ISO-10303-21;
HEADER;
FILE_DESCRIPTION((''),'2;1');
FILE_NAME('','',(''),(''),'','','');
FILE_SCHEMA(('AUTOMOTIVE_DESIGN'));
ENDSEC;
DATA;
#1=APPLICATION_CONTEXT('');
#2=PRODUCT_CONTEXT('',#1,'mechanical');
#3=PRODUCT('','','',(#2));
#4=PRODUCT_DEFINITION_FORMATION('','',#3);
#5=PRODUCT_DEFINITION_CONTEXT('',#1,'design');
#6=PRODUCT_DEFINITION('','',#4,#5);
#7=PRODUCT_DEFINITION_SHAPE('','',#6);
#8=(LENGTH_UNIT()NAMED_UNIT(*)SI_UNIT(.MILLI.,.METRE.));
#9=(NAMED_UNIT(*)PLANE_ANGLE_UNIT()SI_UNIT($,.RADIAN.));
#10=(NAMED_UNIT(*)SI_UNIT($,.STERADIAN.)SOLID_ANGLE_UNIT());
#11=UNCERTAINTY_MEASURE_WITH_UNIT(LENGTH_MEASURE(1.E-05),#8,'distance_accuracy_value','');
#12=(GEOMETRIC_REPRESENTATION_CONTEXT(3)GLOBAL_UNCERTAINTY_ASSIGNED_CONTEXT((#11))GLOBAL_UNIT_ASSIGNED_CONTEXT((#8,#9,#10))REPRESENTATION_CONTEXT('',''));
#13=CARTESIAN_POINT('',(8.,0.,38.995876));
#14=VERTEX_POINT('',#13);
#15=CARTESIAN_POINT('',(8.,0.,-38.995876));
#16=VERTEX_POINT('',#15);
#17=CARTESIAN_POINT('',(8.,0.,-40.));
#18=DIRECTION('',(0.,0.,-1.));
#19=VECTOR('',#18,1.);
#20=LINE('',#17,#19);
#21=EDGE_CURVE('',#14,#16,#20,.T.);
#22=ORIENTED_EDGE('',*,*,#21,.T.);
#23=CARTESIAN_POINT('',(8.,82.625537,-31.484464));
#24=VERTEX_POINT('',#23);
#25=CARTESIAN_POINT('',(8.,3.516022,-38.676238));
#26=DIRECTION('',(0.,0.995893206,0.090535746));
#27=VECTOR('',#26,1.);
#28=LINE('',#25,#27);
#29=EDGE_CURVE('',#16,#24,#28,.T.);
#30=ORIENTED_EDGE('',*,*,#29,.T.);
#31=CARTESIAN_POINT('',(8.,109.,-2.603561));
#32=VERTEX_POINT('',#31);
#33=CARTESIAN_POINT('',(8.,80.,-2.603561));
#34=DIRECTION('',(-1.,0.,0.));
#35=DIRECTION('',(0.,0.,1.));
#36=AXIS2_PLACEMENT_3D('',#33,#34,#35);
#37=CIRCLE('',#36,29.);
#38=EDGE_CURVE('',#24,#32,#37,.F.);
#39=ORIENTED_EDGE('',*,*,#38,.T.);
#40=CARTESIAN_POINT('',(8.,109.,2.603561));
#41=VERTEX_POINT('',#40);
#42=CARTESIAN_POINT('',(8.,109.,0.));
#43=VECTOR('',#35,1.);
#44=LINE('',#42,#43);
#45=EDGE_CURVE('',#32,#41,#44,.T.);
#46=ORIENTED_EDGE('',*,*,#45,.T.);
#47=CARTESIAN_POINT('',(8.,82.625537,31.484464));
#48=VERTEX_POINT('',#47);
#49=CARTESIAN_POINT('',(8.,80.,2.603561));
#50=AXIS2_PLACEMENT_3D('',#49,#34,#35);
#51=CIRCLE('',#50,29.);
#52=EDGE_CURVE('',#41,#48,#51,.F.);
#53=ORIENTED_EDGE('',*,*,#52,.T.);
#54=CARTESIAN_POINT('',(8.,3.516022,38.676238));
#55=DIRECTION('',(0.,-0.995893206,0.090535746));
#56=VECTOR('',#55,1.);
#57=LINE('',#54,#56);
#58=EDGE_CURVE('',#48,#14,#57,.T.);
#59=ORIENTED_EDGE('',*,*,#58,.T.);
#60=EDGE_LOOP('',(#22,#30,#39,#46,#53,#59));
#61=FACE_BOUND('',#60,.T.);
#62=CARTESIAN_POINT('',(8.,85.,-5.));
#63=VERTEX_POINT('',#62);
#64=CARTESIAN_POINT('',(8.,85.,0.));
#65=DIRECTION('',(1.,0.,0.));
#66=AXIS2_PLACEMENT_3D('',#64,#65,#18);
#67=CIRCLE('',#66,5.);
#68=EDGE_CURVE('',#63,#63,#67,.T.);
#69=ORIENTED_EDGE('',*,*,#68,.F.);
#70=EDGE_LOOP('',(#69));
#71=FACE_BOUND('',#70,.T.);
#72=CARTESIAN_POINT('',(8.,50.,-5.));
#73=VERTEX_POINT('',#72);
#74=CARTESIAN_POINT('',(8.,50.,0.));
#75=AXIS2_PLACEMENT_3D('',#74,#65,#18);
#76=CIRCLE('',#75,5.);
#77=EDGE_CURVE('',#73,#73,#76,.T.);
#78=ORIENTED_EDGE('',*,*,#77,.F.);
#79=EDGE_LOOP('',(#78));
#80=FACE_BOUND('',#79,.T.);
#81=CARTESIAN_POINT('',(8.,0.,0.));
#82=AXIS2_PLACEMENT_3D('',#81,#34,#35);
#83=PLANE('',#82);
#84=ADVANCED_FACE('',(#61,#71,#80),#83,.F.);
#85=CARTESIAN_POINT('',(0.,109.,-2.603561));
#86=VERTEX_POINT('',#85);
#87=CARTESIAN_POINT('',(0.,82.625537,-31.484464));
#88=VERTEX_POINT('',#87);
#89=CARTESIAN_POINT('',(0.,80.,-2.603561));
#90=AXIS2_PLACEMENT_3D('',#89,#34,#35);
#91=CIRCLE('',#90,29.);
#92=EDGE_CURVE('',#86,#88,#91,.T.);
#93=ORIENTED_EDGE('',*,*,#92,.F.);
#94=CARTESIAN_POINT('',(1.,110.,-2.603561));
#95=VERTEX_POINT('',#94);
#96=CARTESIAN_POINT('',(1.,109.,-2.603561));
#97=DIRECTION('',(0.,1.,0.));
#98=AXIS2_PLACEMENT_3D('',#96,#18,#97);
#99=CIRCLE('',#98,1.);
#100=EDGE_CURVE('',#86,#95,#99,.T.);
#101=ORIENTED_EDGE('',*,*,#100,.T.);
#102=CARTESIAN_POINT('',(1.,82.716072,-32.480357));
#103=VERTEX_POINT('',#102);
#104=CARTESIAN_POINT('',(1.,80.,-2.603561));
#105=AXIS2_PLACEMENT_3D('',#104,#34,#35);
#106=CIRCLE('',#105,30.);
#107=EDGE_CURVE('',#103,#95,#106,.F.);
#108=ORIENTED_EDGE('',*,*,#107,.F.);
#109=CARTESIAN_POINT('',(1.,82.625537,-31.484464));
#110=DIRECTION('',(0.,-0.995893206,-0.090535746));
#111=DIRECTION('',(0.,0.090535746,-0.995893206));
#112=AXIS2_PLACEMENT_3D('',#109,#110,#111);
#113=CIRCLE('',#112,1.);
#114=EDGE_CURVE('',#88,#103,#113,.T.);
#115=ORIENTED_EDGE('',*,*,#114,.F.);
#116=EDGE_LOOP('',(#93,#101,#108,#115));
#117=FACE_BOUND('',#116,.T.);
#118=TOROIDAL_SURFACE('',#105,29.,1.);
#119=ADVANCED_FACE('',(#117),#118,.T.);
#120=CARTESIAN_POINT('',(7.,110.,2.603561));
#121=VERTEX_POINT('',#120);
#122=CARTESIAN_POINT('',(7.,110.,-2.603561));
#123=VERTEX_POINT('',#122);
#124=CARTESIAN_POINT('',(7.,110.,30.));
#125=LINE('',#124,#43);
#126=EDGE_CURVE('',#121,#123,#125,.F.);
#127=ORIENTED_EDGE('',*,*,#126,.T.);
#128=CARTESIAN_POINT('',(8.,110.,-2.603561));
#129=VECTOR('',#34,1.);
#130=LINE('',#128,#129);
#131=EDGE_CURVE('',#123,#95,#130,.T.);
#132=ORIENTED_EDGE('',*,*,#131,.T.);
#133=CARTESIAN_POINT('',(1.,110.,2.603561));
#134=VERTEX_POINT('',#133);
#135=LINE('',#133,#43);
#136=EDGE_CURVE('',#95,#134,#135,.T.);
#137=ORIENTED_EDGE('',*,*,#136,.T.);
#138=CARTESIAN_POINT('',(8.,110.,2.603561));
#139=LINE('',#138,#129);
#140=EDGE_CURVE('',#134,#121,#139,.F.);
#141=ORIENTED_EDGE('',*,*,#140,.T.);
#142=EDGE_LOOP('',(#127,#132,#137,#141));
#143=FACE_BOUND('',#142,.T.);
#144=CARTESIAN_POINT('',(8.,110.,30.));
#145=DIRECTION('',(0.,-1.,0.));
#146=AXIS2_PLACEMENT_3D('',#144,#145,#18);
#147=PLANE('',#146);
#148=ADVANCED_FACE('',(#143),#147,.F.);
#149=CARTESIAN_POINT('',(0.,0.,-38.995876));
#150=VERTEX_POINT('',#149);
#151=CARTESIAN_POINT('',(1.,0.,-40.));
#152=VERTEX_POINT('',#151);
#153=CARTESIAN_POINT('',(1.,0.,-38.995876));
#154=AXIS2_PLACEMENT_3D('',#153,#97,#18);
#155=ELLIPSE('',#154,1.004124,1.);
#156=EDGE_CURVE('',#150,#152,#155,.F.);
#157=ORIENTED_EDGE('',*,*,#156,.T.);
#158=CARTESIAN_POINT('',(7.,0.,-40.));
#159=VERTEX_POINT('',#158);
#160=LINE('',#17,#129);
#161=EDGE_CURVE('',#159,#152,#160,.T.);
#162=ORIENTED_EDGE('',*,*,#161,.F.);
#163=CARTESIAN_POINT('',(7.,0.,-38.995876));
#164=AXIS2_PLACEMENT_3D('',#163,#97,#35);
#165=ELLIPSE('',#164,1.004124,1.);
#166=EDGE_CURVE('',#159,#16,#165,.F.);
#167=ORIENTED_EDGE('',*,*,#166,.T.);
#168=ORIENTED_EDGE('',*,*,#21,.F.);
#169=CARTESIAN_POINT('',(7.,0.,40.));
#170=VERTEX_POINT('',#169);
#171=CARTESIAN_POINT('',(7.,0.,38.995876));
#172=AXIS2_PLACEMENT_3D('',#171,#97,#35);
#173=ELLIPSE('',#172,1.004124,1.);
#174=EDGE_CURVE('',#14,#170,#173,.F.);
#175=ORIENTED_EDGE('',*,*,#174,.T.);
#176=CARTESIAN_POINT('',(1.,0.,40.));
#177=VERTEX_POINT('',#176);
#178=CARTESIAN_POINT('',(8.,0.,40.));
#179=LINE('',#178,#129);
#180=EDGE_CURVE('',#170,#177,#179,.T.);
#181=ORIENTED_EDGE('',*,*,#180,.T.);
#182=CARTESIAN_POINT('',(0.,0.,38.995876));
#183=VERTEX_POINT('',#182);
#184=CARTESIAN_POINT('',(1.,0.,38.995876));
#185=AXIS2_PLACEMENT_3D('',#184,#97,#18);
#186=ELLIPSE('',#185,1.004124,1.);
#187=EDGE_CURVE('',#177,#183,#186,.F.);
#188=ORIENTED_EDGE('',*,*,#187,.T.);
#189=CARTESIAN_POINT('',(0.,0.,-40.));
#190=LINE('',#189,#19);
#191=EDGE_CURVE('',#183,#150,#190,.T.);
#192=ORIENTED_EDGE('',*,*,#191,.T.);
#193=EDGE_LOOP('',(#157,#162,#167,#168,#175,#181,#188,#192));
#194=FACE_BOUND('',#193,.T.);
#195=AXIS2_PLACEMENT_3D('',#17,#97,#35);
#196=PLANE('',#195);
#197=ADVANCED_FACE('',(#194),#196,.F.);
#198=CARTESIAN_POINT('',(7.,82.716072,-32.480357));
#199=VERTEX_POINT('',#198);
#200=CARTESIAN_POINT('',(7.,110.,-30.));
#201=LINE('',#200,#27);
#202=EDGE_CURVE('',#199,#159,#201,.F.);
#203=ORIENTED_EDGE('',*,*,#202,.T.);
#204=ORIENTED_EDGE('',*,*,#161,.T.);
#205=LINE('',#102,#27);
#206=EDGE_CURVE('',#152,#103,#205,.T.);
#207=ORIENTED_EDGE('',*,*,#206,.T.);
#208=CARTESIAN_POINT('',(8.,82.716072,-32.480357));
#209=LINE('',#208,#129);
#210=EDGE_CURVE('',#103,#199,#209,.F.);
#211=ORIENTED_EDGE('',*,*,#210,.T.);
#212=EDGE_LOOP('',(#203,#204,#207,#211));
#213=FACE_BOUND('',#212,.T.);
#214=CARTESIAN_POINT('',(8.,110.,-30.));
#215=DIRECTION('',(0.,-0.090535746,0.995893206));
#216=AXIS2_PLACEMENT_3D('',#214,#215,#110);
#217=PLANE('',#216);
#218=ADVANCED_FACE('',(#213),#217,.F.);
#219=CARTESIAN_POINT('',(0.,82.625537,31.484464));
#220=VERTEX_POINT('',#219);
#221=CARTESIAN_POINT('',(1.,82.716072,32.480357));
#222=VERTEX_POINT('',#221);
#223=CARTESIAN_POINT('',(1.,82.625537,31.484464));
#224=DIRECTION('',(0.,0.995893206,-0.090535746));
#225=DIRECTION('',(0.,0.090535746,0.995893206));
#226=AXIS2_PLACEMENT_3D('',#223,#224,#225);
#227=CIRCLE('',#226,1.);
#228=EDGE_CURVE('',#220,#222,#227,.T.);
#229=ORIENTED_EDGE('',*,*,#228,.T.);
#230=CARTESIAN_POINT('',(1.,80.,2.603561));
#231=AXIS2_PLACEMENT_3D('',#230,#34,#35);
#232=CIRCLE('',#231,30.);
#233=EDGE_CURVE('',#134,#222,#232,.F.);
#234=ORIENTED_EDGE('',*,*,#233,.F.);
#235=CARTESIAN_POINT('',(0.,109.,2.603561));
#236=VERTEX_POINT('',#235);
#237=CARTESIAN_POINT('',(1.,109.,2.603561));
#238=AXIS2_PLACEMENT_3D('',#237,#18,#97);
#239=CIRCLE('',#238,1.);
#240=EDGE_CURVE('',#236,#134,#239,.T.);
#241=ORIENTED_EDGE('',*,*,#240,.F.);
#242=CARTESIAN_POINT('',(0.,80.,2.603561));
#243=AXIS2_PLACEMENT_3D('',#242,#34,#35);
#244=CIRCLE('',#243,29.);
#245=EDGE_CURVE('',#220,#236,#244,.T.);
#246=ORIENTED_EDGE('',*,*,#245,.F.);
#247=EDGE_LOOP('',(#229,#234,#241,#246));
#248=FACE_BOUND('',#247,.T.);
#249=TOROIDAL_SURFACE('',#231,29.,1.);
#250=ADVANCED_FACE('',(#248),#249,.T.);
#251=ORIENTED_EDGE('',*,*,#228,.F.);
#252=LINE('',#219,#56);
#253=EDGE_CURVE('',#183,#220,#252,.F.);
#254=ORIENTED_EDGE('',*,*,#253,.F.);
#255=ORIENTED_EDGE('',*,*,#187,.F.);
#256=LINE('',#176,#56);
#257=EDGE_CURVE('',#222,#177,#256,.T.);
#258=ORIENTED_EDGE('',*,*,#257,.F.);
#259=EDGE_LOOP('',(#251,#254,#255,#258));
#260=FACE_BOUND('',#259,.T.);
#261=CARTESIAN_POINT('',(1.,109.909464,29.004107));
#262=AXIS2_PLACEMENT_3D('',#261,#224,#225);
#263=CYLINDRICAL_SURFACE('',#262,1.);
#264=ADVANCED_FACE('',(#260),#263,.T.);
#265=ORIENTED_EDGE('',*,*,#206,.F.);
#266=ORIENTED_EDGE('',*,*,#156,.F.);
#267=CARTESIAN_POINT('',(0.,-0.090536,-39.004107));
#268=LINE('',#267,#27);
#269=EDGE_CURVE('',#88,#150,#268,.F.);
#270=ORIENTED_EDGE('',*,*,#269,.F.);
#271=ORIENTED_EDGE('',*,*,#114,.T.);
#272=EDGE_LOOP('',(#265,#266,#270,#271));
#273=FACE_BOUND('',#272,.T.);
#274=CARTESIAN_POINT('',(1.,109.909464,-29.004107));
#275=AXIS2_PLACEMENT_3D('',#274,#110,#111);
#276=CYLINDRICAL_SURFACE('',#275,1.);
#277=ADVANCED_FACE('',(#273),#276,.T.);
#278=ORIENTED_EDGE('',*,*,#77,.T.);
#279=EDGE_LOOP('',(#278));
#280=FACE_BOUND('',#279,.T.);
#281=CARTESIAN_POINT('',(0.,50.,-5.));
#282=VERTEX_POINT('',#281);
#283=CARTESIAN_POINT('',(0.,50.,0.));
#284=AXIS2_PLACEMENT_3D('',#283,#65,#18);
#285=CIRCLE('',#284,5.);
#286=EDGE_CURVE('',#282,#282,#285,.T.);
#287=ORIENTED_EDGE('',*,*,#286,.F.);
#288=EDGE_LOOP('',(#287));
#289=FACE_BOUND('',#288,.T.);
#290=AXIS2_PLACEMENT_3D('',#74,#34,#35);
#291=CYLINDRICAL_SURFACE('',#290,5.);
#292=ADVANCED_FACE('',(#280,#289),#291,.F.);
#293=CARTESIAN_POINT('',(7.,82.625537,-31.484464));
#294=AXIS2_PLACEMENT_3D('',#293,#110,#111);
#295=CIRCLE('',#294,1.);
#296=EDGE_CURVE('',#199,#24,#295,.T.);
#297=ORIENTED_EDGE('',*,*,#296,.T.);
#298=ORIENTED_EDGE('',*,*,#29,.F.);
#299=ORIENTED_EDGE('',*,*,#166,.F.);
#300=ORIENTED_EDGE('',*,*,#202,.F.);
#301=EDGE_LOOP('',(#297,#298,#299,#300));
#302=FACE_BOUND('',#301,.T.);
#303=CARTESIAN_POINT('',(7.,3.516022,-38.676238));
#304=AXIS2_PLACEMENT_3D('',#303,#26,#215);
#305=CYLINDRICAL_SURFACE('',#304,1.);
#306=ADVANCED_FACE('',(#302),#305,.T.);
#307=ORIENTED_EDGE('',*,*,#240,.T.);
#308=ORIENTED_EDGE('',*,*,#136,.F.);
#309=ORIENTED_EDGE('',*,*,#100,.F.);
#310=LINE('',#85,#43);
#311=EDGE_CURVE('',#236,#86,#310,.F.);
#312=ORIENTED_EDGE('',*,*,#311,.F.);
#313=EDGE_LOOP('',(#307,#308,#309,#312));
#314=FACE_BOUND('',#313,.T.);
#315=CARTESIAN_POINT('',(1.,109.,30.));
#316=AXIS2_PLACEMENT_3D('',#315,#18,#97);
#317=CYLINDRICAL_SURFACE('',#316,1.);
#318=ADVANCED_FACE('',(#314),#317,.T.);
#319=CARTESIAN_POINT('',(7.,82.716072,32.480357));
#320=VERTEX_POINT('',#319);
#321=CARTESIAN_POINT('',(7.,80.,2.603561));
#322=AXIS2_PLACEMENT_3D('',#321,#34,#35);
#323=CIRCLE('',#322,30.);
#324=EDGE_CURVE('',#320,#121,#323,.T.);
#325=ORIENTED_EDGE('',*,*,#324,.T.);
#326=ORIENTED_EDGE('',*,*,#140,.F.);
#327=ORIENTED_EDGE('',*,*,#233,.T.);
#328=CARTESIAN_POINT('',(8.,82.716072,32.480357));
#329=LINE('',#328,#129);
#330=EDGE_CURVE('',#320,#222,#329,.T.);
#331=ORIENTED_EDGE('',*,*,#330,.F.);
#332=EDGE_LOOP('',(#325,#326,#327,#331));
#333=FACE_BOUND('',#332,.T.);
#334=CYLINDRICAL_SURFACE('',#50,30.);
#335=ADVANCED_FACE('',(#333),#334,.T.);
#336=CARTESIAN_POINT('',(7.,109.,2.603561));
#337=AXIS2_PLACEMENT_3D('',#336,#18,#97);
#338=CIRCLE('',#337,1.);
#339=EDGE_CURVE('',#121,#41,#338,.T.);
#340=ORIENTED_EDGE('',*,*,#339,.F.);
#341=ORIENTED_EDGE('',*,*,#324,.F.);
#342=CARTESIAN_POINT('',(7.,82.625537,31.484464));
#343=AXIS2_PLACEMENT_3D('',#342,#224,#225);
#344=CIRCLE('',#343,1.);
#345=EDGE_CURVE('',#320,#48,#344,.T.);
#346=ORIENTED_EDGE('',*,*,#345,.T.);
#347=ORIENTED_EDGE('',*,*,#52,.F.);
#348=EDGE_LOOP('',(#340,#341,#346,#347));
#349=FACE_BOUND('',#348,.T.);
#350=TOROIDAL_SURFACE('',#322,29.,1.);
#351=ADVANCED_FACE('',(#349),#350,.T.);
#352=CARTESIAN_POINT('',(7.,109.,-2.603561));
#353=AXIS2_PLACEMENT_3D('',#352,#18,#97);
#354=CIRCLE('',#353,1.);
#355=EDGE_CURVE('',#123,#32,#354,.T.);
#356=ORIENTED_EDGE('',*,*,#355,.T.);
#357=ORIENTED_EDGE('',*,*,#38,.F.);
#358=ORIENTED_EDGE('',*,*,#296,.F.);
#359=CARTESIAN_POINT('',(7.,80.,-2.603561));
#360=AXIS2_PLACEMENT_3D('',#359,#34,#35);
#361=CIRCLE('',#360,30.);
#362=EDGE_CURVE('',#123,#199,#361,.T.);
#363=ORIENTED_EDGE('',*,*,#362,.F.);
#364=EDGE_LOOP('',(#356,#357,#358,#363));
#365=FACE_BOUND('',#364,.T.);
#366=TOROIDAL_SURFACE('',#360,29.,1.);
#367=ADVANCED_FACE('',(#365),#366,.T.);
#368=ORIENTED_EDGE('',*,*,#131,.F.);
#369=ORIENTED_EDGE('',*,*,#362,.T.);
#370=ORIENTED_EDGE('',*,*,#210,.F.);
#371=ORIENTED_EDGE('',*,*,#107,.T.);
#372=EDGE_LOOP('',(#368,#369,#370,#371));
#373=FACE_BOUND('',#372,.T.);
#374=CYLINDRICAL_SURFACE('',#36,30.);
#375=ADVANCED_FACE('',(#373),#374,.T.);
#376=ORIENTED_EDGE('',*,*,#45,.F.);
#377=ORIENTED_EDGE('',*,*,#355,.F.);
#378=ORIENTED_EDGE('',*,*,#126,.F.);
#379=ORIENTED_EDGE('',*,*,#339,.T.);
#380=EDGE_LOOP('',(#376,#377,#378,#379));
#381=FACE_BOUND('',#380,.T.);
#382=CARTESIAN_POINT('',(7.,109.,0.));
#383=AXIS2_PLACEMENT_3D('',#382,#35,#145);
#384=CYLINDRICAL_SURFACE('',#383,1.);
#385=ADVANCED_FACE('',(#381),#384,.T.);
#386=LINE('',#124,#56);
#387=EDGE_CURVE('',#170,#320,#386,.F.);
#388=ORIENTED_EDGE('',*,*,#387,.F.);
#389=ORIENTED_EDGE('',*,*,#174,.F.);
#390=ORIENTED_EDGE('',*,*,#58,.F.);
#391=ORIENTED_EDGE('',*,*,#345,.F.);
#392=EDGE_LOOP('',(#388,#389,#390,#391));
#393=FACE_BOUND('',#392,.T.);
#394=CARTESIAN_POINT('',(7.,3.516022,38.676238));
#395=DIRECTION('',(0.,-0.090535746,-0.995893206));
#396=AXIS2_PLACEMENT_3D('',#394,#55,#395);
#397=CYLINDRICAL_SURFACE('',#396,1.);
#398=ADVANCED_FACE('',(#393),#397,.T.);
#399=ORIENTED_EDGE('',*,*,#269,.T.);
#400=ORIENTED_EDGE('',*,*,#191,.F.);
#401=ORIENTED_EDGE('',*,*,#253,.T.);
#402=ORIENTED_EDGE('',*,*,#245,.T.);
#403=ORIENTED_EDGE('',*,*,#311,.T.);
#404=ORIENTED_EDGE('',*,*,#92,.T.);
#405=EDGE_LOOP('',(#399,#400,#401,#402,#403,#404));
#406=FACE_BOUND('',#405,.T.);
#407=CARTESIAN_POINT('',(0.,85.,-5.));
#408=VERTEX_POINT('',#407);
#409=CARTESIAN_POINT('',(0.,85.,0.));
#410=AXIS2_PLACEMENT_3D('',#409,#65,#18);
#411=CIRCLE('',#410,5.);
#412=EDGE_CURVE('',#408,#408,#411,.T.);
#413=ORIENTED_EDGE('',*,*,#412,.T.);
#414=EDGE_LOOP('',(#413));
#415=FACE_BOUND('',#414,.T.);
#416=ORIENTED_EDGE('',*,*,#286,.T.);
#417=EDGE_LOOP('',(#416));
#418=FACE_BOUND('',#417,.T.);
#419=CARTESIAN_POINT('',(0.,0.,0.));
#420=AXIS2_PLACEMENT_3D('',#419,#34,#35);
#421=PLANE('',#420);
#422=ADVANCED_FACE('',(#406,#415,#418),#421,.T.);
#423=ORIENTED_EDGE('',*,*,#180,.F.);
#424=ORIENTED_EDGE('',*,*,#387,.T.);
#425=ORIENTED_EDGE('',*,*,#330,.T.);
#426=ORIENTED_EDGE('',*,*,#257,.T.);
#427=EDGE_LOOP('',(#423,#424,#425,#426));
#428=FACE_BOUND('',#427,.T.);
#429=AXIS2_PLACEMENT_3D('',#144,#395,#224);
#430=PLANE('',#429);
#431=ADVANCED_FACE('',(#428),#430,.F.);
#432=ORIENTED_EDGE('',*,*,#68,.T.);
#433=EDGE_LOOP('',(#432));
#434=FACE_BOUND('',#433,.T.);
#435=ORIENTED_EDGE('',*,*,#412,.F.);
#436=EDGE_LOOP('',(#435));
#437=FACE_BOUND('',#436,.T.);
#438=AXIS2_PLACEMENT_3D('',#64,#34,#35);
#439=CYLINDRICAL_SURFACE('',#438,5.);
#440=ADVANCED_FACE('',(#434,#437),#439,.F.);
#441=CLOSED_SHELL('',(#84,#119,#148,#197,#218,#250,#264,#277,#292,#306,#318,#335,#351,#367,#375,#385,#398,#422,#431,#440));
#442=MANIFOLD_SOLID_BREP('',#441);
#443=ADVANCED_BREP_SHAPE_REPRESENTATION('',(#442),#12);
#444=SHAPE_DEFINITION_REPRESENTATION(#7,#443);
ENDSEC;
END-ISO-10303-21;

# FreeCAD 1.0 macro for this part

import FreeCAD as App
import Part
import Sketcher
Q = App.Units.Quantity


def edges_at(feature, points):
    """Names of the edges that pass closest to the given points."""
    edges = feature.Shape.Edges
    near = lambda p: min(range(len(edges)), key=lambda i: edges[i].distToShape(Part.Vertex(*p))[0])
    return sorted({f"Edge{near(p) + 1}" for p in points})

doc = App.newDocument("Part")
body = doc.addObject("PartDesign::Body", "Body")

sketch1 = doc.addObject("Sketcher::SketchObject", "Sketch")
body.addObject(sketch1)
sketch1.AttachmentSupport = (doc.YZ_Plane, [""])
sketch1.MapMode = "FlatFace"
sketch1.addGeometry([
    Part.LineSegment(App.Vector(110, -30, 0), App.Vector(110, 30, 0)),
    Part.LineSegment(App.Vector(110, 30, 0), App.Vector(0, 40, 0)),
    Part.LineSegment(App.Vector(0, 40, 0), App.Vector(0, -40, 0)),
    Part.LineSegment(App.Vector(0, -40, 0), App.Vector(110, -30, 0)),
    Part.Circle(App.Vector(50, 0, 0), App.Vector(0, 0, 1), 5),
    Part.Circle(App.Vector(85, 0, 0), App.Vector(0, 0, 1), 5),
], False)
sketch1.addConstraint([
    Sketcher.Constraint("Coincident", 0, 2, 1, 1),
    Sketcher.Constraint("Coincident", 1, 2, 2, 1),
    Sketcher.Constraint("Coincident", 2, 2, 3, 1),
    Sketcher.Constraint("Coincident", 3, 2, 0, 1),
    Sketcher.Constraint("Vertical", 0),
    Sketcher.Constraint("Vertical", 2),
    Sketcher.Constraint("Equal", 4, 5),
    Sketcher.Constraint("Symmetric", 1, 2, 2, 2, -1, 1),
    Sketcher.Constraint("PointOnObject", 4, 3, -1),
    Sketcher.Constraint("PointOnObject", 5, 3, -1),
    Sketcher.Constraint("Equal", 1, 3),
    Sketcher.Constraint("Diameter", 4, Q("10 mm")),
    Sketcher.Constraint("DistanceY", 0, 1, 0, 2, Q("60 mm")),
    Sketcher.Constraint("DistanceY", 2, 2, 2, 1, Q("80 mm")),
    Sketcher.Constraint("DistanceX", -1, 1, 4, 3, Q("50 mm")),
    Sketcher.Constraint("DistanceX", -1, 1, 5, 3, Q("85 mm")),
    Sketcher.Constraint("DistanceX", -1, 1, 0, 2, Q("110 mm")),
])
pad1 = doc.addObject("PartDesign::Pad", "Pad")
body.addObject(pad1)
pad1.Profile = sketch1
pad1.Length = 8
doc.recompute()

fillet = doc.addObject("PartDesign::Fillet", "Fillet")
body.addObject(fillet)
fillet.Base = (pad1, edges_at(pad1, [(4, 110, 30), (4, 110, -30)]))
fillet.Radius = 30
doc.recompute()

fillet2 = doc.addObject("PartDesign::Fillet", "Fillet001")
body.addObject(fillet2)
fillet2.Base = (fillet, edges_at(fillet, [
    (0, 110, 0),
    (8, 110, 0),
    (0, 41.358, 36.24),
    (0, 102.153, 22.834),
    (0, 102.153, -22.834),
    (8, 41.358, 36.24),
    (8, 102.153, 22.834),
    (8, 102.153, -22.834),
    (8, 41.358, -36.24),
    (0, 41.358, -36.24),
]))
fillet2.Radius = 1

doc.recompute()
